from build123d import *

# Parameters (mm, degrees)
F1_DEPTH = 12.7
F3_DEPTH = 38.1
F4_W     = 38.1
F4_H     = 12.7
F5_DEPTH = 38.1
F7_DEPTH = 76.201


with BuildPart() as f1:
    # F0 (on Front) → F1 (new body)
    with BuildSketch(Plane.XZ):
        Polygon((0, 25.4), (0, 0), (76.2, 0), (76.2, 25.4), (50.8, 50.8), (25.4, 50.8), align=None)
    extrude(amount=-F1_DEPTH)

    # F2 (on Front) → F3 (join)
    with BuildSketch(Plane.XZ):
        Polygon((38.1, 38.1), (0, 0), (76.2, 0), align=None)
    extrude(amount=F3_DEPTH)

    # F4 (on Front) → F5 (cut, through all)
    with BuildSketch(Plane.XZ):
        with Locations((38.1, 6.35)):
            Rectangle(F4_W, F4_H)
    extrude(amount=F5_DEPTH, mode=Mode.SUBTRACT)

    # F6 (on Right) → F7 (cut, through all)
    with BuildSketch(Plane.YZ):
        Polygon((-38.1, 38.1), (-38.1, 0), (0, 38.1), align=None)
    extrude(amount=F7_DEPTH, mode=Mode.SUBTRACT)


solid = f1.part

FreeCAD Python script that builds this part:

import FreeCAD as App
import Part
import Sketcher
from FreeCAD import Vector
Q = App.Units.Quantity

doc = App.newDocument("Part")
body = doc.addObject("PartDesign::Body", "Body")

# Sketch on XZ plane
sketch1 = body.newObject("Sketcher::SketchObject", "Sketch")
sketch1.AttachmentSupport = (doc.getObject("XZ_Plane"), [""])
sketch1.MapMode = "FlatFace"
sketch1.addGeometry(Part.LineSegment(Vector(0, 25, 0), Vector(0, 0, 0)), False)
sketch1.addGeometry(Part.LineSegment(Vector(0, 0, 0), Vector(76, 0, 0)), False)
sketch1.addGeometry(Part.LineSegment(Vector(76, 0, 0), Vector(76, 25, 0)), False)
sketch1.addGeometry(Part.LineSegment(Vector(76, 25, 0), Vector(51, 51, 0)), False)
sketch1.addGeometry(Part.LineSegment(Vector(51, 51, 0), Vector(25, 51, 0)), False)
sketch1.addGeometry(Part.LineSegment(Vector(25, 51, 0), Vector(0, 25, 0)), False)
sketch1.addConstraint(Sketcher.Constraint("Coincident", 0, 2, 1, 1))
sketch1.addConstraint(Sketcher.Constraint("Coincident", 1, 2, 2, 1))
sketch1.addConstraint(Sketcher.Constraint("Coincident", 2, 2, 3, 1))
sketch1.addConstraint(Sketcher.Constraint("Coincident", 3, 2, 4, 1))
sketch1.addConstraint(Sketcher.Constraint("Coincident", 4, 2, 5, 1))
sketch1.addConstraint(Sketcher.Constraint("Coincident", 5, 2, 0, 1))
sketch1.addConstraint(Sketcher.Constraint("Vertical", 0))
sketch1.addConstraint(Sketcher.Constraint("Horizontal", 1))
sketch1.addConstraint(Sketcher.Constraint("Vertical", 2))
sketch1.addConstraint(Sketcher.Constraint("Horizontal", 4))
sketch1.addConstraint(Sketcher.Constraint("Coincident", 0, 2, -1, 1))
sketch1.addConstraint(Sketcher.Constraint("Perpendicular", 3, 5))
sketch1.addConstraint(Sketcher.Constraint("Horizontal", 2, 2, 5, 2))
sketch1.addConstraint(Sketcher.Constraint("Equal", 4, 0))
sketch1.addConstraint(Sketcher.Constraint("Equal", 3, 5))
sketch1.addConstraint(Sketcher.Constraint("DistanceX", 1, 1, 1, 2, Q("3 in")))
sketch1.addConstraint(Sketcher.Constraint("DistanceX", 4, 2, 4, 1, Q("1 in")))
pad1 = body.newObject("PartDesign::Pad", "Pad")
pad1.Profile = sketch1
pad1.Length = Q("0.5 in")
pad1.Reversed = True

# Sketch on XZ plane
sketch2 = body.newObject("Sketcher::SketchObject", "Sketch001")
sketch2.AttachmentSupport = (doc.getObject("XZ_Plane"), [""])
sketch2.MapMode = "FlatFace"
sketch2.addGeometry(Part.LineSegment(Vector(38, 38, 0), Vector(0, 0, 0)), False)
sketch2.addGeometry(Part.LineSegment(Vector(0, 0, 0), Vector(76, 0, 0)), False)
sketch2.addGeometry(Part.LineSegment(Vector(76, 0, 0), Vector(38, 38, 0)), False)
sketch2.addConstraint(Sketcher.Constraint("Coincident", 0, 2, 1, 1))
sketch2.addConstraint(Sketcher.Constraint("Coincident", 1, 2, 2, 1))
sketch2.addConstraint(Sketcher.Constraint("Coincident", 2, 2, 0, 1))
sketch2.addConstraint(Sketcher.Constraint("Horizontal", 1))
sketch2.addConstraint(Sketcher.Constraint("Coincident", 0, 2, -1, 1))
sketch2.addConstraint(Sketcher.Constraint("Perpendicular", 0, 2))
sketch2.addConstraint(Sketcher.Constraint("Equal", 0, 2))
sketch2.addConstraint(Sketcher.Constraint("DistanceX", 1, 1, 1, 2, Q("3 in")))
pad2 = body.newObject("PartDesign::Pad", "Pad001")
pad2.Profile = sketch2
pad2.Length = Q("1.5 in")

# Sketch on XZ plane
sketch3 = body.newObject("Sketcher::SketchObject", "Sketch002")
sketch3.AttachmentSupport = (doc.getObject("XZ_Plane"), [""])
sketch3.MapMode = "FlatFace"
sketch3.addGeometry(Part.LineSegment(Vector(19, 13, 0), Vector(19, 0, 0)), False)
sketch3.addGeometry(Part.LineSegment(Vector(19, 0, 0), Vector(57, 0, 0)), False)
sketch3.addGeometry(Part.LineSegment(Vector(57, 0, 0), Vector(57, 13, 0)), False)
sketch3.addGeometry(Part.LineSegment(Vector(57, 13, 0), Vector(19, 13, 0)), False)
sketch3.addConstraint(Sketcher.Constraint("Coincident", 0, 2, 1, 1))
sketch3.addConstraint(Sketcher.Constraint("Coincident", 1, 2, 2, 1))
sketch3.addConstraint(Sketcher.Constraint("Coincident", 2, 2, 3, 1))
sketch3.addConstraint(Sketcher.Constraint("Coincident", 3, 2, 0, 1))
sketch3.addConstraint(Sketcher.Constraint("Vertical", 0))
sketch3.addConstraint(Sketcher.Constraint("Horizontal", 1))
sketch3.addConstraint(Sketcher.Constraint("Vertical", 2))
sketch3.addConstraint(Sketcher.Constraint("Horizontal", 3))
sketch3.addConstraint(Sketcher.Constraint("PointOnObject", 0, 2, -1))
sketch3.addConstraint(Sketcher.Constraint("DistanceX", 1, 1, 1, 2, Q("1.5 in")))
sketch3.addConstraint(Sketcher.Constraint("DistanceY", 0, 2, 0, 1, Q("0.5 in")))
sketch3.addConstraint(Sketcher.Constraint("DistanceX", -1, 1, 0, 2, Q("0.75 in")))
pocket1 = body.newObject("PartDesign::Pocket", "Pocket")
pocket1.Profile = sketch3
pocket1.Type = "ThroughAll"
pocket1.Reversed = True

# Sketch on YZ plane
sketch4 = body.newObject("Sketcher::SketchObject", "Sketch003")
sketch4.AttachmentSupport = (doc.getObject("YZ_Plane"), [""])
sketch4.MapMode = "FlatFace"
sketch4.addGeometry(Part.LineSegment(Vector(-38, 38, 0), Vector(-38, 0, 0)), False)
sketch4.addGeometry(Part.LineSegment(Vector(-38, 0, 0), Vector(0, 38, 0)), False)
sketch4.addGeometry(Part.LineSegment(Vector(0, 38, 0), Vector(-38, 38, 0)), False)
sketch4.addConstraint(Sketcher.Constraint("Coincident", 0, 2, 1, 1))
sketch4.addConstraint(Sketcher.Constraint("Coincident", 1, 2, 2, 1))
sketch4.addConstraint(Sketcher.Constraint("Coincident", 2, 2, 0, 1))
sketch4.addConstraint(Sketcher.Constraint("Vertical", 0))
sketch4.addConstraint(Sketcher.Constraint("Horizontal", 2))
sketch4.addConstraint(Sketcher.Constraint("PointOnObject", 0, 2, -1))
sketch4.addConstraint(Sketcher.Constraint("PointOnObject", 1, 2, -2))
sketch4.addConstraint(Sketcher.Constraint("Equal", 2, 0))
sketch4.addConstraint(Sketcher.Constraint("DistanceX", 2, 2, 2, 1, Q("1.5 in")))
pocket2 = body.newObject("PartDesign::Pocket", "Pocket001")
pocket2.Profile = sketch4
pocket2.Type = "ThroughAll"
pocket2.Reversed = True

doc.recompute()
